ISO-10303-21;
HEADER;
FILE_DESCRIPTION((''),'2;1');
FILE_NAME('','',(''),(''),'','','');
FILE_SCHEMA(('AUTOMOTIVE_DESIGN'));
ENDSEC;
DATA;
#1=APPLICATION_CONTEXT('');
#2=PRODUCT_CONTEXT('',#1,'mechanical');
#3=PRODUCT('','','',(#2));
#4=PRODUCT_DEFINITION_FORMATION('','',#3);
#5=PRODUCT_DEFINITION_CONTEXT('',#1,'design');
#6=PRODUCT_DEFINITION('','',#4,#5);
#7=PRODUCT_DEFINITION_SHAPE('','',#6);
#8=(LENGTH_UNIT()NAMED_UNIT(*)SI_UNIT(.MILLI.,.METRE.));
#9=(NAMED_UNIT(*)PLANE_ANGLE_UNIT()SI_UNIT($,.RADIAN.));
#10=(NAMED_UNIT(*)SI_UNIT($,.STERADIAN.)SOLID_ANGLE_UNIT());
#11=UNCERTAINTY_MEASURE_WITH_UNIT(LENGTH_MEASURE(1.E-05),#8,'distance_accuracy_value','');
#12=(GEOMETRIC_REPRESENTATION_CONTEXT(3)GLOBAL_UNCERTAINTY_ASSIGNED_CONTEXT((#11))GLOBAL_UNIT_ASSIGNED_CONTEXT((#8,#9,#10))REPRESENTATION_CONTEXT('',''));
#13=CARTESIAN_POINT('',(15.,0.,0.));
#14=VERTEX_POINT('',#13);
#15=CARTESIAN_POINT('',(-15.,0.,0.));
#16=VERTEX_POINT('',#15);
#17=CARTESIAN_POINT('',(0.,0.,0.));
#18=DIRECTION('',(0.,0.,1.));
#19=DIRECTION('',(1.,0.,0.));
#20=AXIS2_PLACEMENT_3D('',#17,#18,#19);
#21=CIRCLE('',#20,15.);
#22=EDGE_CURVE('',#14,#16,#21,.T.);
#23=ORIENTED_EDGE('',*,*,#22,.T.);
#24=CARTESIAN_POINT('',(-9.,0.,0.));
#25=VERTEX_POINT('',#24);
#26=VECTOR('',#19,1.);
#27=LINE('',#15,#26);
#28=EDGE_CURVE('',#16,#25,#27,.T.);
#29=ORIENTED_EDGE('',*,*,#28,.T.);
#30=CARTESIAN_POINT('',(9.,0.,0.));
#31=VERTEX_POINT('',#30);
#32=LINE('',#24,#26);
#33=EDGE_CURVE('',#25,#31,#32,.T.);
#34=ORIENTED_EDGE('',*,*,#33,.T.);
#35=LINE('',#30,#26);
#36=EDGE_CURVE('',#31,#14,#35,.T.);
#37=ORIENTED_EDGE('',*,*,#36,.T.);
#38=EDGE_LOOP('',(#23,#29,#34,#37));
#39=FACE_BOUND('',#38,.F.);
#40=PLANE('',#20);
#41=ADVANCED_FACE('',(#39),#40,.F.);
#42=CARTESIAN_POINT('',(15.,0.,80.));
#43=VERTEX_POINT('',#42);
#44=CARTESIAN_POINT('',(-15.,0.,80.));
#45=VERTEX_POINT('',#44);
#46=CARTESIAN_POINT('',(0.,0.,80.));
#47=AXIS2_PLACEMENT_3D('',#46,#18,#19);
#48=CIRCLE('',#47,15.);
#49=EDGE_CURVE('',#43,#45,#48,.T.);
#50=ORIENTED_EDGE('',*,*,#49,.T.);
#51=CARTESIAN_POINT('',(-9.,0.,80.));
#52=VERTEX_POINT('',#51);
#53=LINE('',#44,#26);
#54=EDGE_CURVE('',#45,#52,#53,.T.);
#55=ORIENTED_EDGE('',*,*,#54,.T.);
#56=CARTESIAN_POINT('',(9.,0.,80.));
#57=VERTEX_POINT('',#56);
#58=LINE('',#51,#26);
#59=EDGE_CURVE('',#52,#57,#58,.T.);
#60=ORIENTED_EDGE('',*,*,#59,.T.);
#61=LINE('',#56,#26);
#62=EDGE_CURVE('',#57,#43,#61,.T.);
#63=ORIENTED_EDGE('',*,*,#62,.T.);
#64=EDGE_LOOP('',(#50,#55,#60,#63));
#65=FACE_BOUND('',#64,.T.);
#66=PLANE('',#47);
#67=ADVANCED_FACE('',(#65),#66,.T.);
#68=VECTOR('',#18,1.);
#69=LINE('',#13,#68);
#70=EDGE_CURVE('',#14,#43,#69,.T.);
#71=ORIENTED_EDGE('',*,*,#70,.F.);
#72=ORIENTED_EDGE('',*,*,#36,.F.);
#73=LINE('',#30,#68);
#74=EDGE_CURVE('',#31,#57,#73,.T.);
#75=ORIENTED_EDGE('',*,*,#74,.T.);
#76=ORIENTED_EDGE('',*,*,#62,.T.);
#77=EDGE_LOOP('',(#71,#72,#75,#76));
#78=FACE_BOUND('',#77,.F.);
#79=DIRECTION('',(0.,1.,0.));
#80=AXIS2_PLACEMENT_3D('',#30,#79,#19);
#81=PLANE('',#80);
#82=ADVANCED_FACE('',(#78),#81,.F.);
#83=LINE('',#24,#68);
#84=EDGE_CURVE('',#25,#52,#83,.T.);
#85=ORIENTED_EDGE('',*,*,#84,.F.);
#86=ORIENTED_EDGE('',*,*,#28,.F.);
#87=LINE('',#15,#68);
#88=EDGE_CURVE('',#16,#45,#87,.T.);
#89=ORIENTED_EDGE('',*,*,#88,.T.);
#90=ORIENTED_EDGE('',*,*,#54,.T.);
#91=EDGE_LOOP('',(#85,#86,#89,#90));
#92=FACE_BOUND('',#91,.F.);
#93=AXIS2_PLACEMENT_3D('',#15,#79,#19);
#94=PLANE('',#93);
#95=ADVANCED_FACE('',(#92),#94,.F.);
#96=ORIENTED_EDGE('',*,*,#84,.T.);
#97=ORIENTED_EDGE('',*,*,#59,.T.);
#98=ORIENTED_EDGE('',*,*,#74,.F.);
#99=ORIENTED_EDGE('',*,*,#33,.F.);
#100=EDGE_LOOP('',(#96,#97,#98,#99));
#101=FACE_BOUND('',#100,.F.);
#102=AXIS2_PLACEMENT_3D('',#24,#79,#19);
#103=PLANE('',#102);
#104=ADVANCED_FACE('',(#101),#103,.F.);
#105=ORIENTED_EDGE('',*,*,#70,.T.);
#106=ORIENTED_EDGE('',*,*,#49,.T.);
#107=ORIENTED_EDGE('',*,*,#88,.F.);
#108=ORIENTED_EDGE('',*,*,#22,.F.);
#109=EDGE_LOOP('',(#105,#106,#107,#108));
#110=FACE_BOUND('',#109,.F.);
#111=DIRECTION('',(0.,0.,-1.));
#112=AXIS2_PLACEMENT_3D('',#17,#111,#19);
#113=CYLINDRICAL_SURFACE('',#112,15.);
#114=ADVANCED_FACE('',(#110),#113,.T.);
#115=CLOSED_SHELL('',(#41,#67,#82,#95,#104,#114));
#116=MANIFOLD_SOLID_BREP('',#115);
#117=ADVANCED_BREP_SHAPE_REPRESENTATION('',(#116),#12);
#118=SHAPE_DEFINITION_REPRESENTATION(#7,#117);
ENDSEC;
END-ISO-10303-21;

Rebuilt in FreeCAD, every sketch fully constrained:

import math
import FreeCAD as App
import Part
import Sketcher

V = App.Vector

doc = App.newDocument("Part")
body = doc.addObject("PartDesign::Body", "Body")

# Sketch on XY plane
sketch1 = doc.addObject("Sketcher::SketchObject", "Sketch")
body.addObject(sketch1)
sketch1.AttachmentSupport = (doc.XY_Plane, [""])
sketch1.MapMode = "FlatFace"
sketch1.addGeometry([
    Part.LineSegment(V(-15, 0, 0), V(15, 0, 0)),
    Part.ArcOfCircle(Part.Circle(V(0, 0, 0), V(0, 0, 1), 15), math.radians(0), math.radians(180)),
], False)
sketch1.addConstraint([
    Sketcher.Constraint("Coincident", 0, 1, 1, 2),
    Sketcher.Constraint("Coincident", 1, 1, 0, 2),
    Sketcher.Constraint("Horizontal", 0),
    Sketcher.Constraint("Coincident", 1, 3, -1, 1),
    Sketcher.Constraint("PointOnObject", 0, 1, -1),
    Sketcher.Constraint("Radius", 1, 15.0),
])
pad1 = doc.addObject("PartDesign::Pad", "Pad")
body.addObject(pad1)
pad1.Profile = sketch1
pad1.Length = 80

doc.recompute()
